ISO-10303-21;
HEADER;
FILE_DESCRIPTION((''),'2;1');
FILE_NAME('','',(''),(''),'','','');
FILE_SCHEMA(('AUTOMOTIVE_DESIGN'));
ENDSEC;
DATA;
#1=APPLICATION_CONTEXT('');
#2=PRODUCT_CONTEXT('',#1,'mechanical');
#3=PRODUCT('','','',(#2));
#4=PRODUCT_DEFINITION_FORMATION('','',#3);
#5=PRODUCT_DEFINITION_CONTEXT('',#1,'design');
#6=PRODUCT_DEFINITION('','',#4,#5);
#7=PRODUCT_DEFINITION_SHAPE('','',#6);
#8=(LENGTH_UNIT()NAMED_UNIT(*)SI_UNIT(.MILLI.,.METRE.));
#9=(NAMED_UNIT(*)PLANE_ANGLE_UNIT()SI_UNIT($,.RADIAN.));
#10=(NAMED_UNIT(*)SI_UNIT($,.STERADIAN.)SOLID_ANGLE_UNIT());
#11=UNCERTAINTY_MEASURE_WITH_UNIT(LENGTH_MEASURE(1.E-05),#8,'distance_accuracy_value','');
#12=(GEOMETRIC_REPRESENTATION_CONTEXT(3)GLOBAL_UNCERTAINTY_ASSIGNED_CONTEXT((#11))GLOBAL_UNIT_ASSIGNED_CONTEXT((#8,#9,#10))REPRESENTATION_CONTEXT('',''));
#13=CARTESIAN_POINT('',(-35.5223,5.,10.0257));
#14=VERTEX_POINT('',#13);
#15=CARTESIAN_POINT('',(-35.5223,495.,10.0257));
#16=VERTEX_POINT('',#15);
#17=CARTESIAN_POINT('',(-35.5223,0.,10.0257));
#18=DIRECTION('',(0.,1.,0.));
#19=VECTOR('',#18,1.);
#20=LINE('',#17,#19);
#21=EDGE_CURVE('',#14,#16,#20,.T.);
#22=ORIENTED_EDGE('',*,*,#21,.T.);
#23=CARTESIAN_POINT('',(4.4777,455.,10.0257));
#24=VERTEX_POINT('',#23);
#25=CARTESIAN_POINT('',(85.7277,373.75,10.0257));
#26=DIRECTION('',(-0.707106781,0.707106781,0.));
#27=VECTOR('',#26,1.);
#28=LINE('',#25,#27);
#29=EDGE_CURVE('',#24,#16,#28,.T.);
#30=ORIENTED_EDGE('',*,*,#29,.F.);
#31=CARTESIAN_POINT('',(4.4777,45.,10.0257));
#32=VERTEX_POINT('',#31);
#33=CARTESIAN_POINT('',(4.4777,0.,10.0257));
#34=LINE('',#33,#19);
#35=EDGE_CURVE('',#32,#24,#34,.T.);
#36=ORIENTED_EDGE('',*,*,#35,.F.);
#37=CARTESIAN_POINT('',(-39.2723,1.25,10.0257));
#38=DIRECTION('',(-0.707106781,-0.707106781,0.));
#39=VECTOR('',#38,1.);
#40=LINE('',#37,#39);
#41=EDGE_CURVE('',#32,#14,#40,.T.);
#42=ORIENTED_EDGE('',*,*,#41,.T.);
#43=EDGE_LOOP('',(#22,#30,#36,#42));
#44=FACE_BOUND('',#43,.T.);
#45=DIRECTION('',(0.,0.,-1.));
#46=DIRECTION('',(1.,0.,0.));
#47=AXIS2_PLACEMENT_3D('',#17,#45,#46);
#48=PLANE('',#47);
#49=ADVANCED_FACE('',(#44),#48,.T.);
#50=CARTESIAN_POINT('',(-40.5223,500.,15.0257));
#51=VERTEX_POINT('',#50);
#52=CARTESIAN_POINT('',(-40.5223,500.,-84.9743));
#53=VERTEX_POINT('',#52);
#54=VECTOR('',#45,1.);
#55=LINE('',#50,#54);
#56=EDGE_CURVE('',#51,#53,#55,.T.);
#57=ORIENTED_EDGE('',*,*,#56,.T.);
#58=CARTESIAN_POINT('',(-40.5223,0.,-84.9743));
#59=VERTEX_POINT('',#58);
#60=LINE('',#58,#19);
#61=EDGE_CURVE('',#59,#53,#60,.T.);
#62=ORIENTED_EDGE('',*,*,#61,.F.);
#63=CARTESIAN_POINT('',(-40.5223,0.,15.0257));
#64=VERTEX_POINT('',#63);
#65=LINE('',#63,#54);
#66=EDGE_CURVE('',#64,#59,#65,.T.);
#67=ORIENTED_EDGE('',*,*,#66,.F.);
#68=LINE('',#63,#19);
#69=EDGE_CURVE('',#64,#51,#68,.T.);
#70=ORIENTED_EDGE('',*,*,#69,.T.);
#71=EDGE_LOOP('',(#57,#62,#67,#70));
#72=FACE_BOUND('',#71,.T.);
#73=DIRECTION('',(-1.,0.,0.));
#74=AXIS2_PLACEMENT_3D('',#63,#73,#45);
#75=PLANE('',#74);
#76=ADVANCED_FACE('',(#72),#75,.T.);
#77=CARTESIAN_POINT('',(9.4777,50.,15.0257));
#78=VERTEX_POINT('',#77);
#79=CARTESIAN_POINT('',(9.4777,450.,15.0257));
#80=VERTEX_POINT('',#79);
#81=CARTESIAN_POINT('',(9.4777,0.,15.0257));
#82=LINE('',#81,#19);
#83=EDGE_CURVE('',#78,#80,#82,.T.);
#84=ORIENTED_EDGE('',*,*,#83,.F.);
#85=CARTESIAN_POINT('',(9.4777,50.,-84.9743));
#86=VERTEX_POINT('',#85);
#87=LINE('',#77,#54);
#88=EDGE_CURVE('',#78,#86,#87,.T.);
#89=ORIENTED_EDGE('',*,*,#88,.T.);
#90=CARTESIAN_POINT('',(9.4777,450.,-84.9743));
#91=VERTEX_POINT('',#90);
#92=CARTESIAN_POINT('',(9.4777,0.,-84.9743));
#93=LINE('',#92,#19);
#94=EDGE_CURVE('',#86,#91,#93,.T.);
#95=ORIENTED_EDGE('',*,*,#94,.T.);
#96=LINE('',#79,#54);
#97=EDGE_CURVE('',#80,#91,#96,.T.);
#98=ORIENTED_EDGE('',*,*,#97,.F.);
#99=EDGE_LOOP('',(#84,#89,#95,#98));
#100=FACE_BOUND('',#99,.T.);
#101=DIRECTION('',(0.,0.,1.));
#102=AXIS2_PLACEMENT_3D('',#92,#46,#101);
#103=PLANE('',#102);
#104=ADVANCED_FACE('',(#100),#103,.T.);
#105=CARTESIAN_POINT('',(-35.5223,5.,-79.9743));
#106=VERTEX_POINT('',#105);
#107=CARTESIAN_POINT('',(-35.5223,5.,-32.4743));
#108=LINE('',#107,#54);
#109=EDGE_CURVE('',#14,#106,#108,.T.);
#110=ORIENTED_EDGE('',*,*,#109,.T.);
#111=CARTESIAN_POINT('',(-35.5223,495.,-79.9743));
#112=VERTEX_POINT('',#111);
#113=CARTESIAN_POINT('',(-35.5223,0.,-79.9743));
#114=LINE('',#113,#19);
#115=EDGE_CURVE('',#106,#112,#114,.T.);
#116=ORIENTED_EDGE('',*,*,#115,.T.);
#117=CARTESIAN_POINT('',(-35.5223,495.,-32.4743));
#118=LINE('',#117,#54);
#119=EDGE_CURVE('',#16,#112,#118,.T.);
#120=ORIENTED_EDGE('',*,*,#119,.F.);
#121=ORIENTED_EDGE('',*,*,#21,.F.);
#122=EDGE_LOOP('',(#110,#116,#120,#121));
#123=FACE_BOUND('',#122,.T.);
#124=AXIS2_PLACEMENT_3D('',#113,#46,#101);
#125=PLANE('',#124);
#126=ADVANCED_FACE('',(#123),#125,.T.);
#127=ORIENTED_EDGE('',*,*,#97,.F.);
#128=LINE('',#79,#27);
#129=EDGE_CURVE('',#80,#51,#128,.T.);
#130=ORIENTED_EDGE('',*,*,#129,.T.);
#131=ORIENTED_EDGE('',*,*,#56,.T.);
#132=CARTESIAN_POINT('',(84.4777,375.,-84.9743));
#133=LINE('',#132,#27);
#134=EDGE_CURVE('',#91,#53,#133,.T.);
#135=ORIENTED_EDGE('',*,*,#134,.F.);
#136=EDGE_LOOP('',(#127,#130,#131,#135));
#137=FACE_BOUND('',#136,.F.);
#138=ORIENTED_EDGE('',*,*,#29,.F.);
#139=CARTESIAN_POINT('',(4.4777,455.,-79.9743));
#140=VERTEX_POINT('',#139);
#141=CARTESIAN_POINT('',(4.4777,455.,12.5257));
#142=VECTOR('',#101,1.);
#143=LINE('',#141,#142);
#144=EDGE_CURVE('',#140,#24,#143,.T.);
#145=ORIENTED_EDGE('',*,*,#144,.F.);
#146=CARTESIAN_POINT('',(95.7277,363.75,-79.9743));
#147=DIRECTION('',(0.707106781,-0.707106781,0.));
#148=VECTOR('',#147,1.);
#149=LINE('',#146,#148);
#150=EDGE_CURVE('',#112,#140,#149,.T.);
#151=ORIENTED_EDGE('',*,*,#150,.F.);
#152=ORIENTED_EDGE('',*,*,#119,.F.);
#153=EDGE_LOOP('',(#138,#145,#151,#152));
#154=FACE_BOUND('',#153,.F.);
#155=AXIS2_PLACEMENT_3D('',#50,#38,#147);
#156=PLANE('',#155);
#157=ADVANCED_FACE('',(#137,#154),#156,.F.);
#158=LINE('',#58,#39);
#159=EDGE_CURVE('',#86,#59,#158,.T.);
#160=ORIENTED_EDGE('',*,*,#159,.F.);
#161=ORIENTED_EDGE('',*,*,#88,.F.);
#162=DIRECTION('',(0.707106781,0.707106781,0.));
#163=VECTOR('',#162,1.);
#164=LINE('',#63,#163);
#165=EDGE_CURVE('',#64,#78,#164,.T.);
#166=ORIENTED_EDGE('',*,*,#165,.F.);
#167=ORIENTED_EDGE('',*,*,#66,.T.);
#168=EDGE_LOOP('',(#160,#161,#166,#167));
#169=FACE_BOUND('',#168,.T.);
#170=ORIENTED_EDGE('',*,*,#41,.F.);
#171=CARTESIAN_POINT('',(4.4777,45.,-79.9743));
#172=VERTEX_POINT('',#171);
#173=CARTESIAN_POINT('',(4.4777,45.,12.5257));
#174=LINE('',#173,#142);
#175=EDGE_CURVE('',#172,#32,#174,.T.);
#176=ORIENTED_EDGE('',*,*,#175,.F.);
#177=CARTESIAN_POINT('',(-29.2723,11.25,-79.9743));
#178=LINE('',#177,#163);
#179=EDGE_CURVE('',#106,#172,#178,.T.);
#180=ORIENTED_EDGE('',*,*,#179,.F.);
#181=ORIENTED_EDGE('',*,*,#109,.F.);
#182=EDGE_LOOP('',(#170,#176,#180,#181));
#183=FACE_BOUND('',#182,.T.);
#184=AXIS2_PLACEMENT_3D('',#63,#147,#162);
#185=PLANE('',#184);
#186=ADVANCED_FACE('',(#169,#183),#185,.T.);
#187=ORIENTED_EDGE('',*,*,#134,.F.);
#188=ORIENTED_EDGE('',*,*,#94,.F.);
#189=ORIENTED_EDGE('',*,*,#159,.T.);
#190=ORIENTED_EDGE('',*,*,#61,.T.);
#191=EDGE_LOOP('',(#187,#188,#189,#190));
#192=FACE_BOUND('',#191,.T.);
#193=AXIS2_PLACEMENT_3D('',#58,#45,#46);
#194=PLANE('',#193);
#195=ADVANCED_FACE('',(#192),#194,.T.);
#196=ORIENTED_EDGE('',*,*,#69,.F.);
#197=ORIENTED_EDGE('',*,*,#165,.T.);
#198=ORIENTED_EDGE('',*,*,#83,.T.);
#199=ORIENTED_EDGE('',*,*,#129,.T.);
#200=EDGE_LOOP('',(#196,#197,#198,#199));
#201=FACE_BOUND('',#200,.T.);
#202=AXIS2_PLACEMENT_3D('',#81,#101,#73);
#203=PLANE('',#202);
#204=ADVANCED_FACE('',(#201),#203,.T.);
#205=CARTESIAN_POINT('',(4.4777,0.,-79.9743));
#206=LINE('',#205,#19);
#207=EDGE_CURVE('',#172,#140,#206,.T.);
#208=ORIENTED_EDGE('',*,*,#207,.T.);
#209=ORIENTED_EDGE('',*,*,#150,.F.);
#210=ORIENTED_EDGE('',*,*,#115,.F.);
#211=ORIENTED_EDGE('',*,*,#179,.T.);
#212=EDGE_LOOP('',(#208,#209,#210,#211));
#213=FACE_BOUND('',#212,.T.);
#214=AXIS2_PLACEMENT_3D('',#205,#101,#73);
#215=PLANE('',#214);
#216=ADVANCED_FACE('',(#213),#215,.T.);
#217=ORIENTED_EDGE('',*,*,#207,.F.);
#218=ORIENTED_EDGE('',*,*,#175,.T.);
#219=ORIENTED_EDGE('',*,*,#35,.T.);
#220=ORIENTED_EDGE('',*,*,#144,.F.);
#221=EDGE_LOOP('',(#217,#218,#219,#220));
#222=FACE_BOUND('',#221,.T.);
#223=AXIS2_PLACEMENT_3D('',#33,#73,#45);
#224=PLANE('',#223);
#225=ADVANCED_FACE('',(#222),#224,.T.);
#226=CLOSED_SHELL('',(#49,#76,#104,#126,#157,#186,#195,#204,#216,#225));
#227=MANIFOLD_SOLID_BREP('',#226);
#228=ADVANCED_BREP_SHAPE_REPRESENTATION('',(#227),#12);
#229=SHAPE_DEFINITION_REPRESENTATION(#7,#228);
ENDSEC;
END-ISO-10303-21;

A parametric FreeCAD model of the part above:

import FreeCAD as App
import Part
import Sketcher

V = App.Vector
Q = App.Units.Quantity

doc = App.newDocument("Part")
body = doc.addObject("PartDesign::Body", "Body")

sketch1 = doc.addObject("Sketcher::SketchObject", "Sketch")
body.addObject(sketch1)
sketch1.AttachmentSupport = (doc.XZ_Plane, [""])
sketch1.MapMode = "FlatFace"
sketch1.addGeometry([
    Part.LineSegment(V(-40.5223, 15.0257, 0), V(9.4777, 15.0257, 0)),
    Part.LineSegment(V(9.4777, 15.0257, 0), V(9.4777, -84.9743, 0)),
    Part.LineSegment(V(9.4777, -84.9743, 0), V(-40.5223, -84.9743, 0)),
    Part.LineSegment(V(-40.5223, -84.9743, 0), V(-40.5223, 15.0257, 0)),
    Part.LineSegment(V(4.4777, 10.0257, 0), V(-35.5223, 10.0257, 0)),
    Part.LineSegment(V(-35.5223, 10.0257, 0), V(-35.5223, -79.9743, 0)),
    Part.LineSegment(V(-35.5223, -79.9743, 0), V(4.4777, -79.9743, 0)),
    Part.LineSegment(V(4.4777, -79.9743, 0), V(4.4777, 10.0257, 0)),
], False)
sketch1.addConstraint([
    Sketcher.Constraint("Coincident", 0, 2, 1, 1),
    Sketcher.Constraint("Coincident", 1, 2, 2, 1),
    Sketcher.Constraint("Coincident", 2, 2, 3, 1),
    Sketcher.Constraint("Coincident", 3, 2, 0, 1),
    Sketcher.Constraint("Coincident", 4, 2, 5, 1),
    Sketcher.Constraint("Coincident", 5, 2, 6, 1),
    Sketcher.Constraint("Coincident", 6, 2, 7, 1),
    Sketcher.Constraint("Coincident", 7, 2, 4, 1),
    Sketcher.Constraint("Horizontal", 0),
    Sketcher.Constraint("Vertical", 1),
    Sketcher.Constraint("Horizontal", 2),
    Sketcher.Constraint("Vertical", 3),
    Sketcher.Constraint("Horizontal", 4),
    Sketcher.Constraint("Vertical", 5),
    Sketcher.Constraint("Horizontal", 6),
    Sketcher.Constraint("Vertical", 7),
    Sketcher.Constraint("DistanceX", 0, 1, 0, 2, Q("50 mm")),
    Sketcher.Constraint("DistanceX", 4, 2, 4, 1, Q("40 mm")),
    Sketcher.Constraint("DistanceY", 1, 2, 1, 1, Q("100 mm")),
    Sketcher.Constraint("DistanceY", 5, 2, 5, 1, Q("90 mm")),
    Sketcher.Constraint("DistanceX", 3, 2, 4, 2, Q("5 mm")),
    Sketcher.Constraint("DistanceY", 4, 2, 3, 2, Q("5 mm")),
    Sketcher.Constraint("DistanceX", -1, 1, 0, 2, Q("9.4777 mm")),
    Sketcher.Constraint("DistanceY", -1, 1, 0, 2, Q("15.0257 mm")),
])
pad1 = doc.addObject("PartDesign::Pad", "Pad")
body.addObject(pad1)
pad1.Profile = sketch1
pad1.Length = 500
pad1.Reversed = True

sketch2 = doc.addObject("Sketcher::SketchObject", "Sketch001")
body.addObject(sketch2)
sketch2.AttachmentSupport = (doc.XY_Plane, [""])
sketch2.MapMode = "FlatFace"
sketch2.AttachmentOffset = App.Placement(V(0, 0, 15.0257), App.Rotation())
sketch2.addGeometry([
    Part.LineSegment(V(-40.5223, 0, 0), V(9.4777, 0, 0)),
    Part.LineSegment(V(9.4777, 0, 0), V(9.4777, 50, 0)),
    Part.LineSegment(V(9.4777, 50, 0), V(-40.5223, 0, 0)),
    Part.LineSegment(V(-40.5223, 500, 0), V(9.4777, 450, 0)),
    Part.LineSegment(V(9.4777, 450, 0), V(9.4777, 500, 0)),
    Part.LineSegment(V(9.4777, 500, 0), V(-40.5223, 500, 0)),
], False)
sketch2.addConstraint([
    Sketcher.Constraint("Coincident", 0, 2, 1, 1),
    Sketcher.Constraint("Coincident", 1, 2, 2, 1),
    Sketcher.Constraint("Coincident", 2, 2, 0, 1),
    Sketcher.Constraint("Coincident", 3, 2, 4, 1),
    Sketcher.Constraint("Coincident", 4, 2, 5, 1),
    Sketcher.Constraint("Coincident", 5, 2, 3, 1),
    Sketcher.Constraint("Horizontal", 0),
    Sketcher.Constraint("Vertical", 1),
    Sketcher.Constraint("Vertical", 4),
    Sketcher.Constraint("Horizontal", 5),
    Sketcher.Constraint("PointOnObject", 0, 2, -1),
    Sketcher.Constraint("Perpendicular", 2, 3),
    Sketcher.Constraint("Vertical", 1, 2, 3, 2),
    Sketcher.Constraint("Vertical", 2, 2, 5, 2),
    Sketcher.Constraint("Equal", 5, 1),
    Sketcher.Constraint("DistanceX", 0, 1, 0, 2, Q("50 mm")),
    Sketcher.Constraint("DistanceY", -1, 1, 3, 2, Q("450 mm")),
    Sketcher.Constraint("DistanceX", -1, 1, 0, 2, Q("9.4777 mm")),
])
pocket1 = doc.addObject("PartDesign::Pocket", "Pocket")
body.addObject(pocket1)
pocket1.Profile = sketch2
pocket1.Length = 500

doc.recompute()
